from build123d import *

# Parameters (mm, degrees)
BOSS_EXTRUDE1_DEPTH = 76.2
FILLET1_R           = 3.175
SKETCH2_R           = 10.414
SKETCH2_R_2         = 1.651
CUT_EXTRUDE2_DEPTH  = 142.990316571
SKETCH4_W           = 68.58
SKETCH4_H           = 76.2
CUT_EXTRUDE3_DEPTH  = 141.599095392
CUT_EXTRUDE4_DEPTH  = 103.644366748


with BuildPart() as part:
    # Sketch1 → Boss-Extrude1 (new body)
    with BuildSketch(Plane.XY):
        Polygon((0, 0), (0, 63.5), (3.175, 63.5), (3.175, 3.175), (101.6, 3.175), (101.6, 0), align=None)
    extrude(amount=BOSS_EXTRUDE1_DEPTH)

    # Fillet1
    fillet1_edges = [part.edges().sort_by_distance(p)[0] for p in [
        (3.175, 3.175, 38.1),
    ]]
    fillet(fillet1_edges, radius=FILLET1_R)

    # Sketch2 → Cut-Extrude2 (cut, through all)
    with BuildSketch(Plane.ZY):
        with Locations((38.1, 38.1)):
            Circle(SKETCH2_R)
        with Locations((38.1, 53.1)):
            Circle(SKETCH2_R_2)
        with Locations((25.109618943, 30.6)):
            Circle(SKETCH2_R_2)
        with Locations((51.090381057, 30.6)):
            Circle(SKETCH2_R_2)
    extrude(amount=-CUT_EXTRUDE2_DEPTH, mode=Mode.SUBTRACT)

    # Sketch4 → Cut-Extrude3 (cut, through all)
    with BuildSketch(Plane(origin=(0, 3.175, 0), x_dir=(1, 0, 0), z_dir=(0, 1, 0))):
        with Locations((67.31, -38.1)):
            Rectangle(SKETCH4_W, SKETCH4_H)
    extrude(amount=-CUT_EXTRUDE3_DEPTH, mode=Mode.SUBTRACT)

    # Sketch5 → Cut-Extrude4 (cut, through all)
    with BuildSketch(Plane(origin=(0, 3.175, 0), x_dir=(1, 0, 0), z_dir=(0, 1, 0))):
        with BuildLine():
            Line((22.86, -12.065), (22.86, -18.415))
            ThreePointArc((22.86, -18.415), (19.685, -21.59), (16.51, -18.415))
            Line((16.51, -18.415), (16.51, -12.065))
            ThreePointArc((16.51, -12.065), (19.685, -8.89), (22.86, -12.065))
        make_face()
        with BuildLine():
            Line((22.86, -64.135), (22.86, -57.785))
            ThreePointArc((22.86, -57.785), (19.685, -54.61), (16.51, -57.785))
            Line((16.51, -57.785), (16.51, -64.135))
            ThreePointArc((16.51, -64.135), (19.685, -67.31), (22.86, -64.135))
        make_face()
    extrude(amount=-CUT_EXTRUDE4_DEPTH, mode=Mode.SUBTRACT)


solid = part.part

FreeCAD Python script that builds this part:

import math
import FreeCAD as App
import Part
import Sketcher

V = App.Vector
Q = App.Units.Quantity


def edges_at(feature, points):
    """Names of the edges that pass closest to the given points."""
    edges = feature.Shape.Edges
    near = lambda p: min(range(len(edges)), key=lambda i: edges[i].distToShape(Part.Vertex(*p))[0])
    return sorted({f"Edge{near(p) + 1}" for p in points})

doc = App.newDocument("Part")
body = doc.addObject("PartDesign::Body", "Body")

sketch1 = body.newObject("Sketcher::SketchObject", "Sketch")
sketch1.AttachmentSupport = (doc.getObject("XY_Plane"), [""])
sketch1.MapMode = "FlatFace"
sketch1.addGeometry([
    Part.LineSegment(V(0, 63.5, 0), V(0, 0, 0)),
    Part.LineSegment(V(0, 0, 0), V(101.6, 0, 0)),
    Part.LineSegment(V(101.6, 0, 0), V(101.6, 3.175, 0)),
    Part.LineSegment(V(101.6, 3.175, 0), V(3.175, 3.175, 0)),
    Part.LineSegment(V(3.175, 3.175, 0), V(3.175, 63.5, 0)),
    Part.LineSegment(V(3.175, 63.5, 0), V(0, 63.5, 0)),
], False)
sketch1.addConstraint([
    Sketcher.Constraint("Coincident", 0, 2, 1, 1),
    Sketcher.Constraint("Coincident", 1, 2, 2, 1),
    Sketcher.Constraint("Coincident", 2, 2, 3, 1),
    Sketcher.Constraint("Coincident", 3, 2, 4, 1),
    Sketcher.Constraint("Coincident", 4, 2, 5, 1),
    Sketcher.Constraint("Coincident", 5, 2, 0, 1),
    Sketcher.Constraint("Vertical", 0),
    Sketcher.Constraint("Horizontal", 1),
    Sketcher.Constraint("Vertical", 2),
    Sketcher.Constraint("Horizontal", 3),
    Sketcher.Constraint("Vertical", 4),
    Sketcher.Constraint("Horizontal", 5),
    Sketcher.Constraint("Coincident", 0, 2, -1, 1),
    Sketcher.Constraint("Equal", 5, 2),
    Sketcher.Constraint("DistanceX", 1, 1, 1, 2, Q("4 in")),
    Sketcher.Constraint("DistanceY", 0, 2, 0, 1, Q("2.5 in")),
    Sketcher.Constraint("DistanceX", 3, 2, 3, 1, Q("3.875 in")),
])
pad1 = body.newObject("PartDesign::Pad", "Pad")
pad1.Profile = sketch1
pad1.Length = Q("3 in")
doc.recompute()

fillet = body.newObject("PartDesign::Fillet", "Fillet")
fillet.Base = (pad1, edges_at(pad1, [(3.175, 3.175, 38.1)]))
fillet.Radius = Q("0.125 in")

sketch2 = body.newObject("Sketcher::SketchObject", "Sketch001")
sketch2.AttachmentSupport = (doc.getObject("YZ_Plane"), [""])
sketch2.MapMode = "FlatFace"
sketch2.addGeometry([
    Part.Circle(V(38.1, 38.1, 0), V(0, 0, 1), 10.414),
    Part.Circle(V(53.1, 38.1, 0), V(0, 0, 1), 1.651),
    Part.Circle(V(30.6, 25.109619, 0), V(0, 0, 1), 1.651),
    Part.Circle(V(30.6, 51.090381, 0), V(0, 0, 1), 1.651),
], False)
sketch2.addConstraint([
    Sketcher.Constraint("Equal", 1, 2),
    Sketcher.Constraint("Equal", 2, 3),
    Sketcher.Constraint("Horizontal", 0, 3, 1, 3),
    Sketcher.Constraint("Vertical", 2, 3, 3, 3),
    Sketcher.Constraint("Diameter", 0, Q("0.82 in")),
    Sketcher.Constraint("Diameter", 1, Q("0.13 in")),
    Sketcher.Constraint("DistanceX", -1, 1, 0, 3, Q("1.5 in")),
    Sketcher.Constraint("DistanceY", -1, 1, 0, 3, Q("1.5 in")),
    Sketcher.Constraint("DistanceX", -1, 1, 1, 3, Q("53.1 mm")),
    Sketcher.Constraint("DistanceX", -1, 1, 2, 3, Q("30.6 mm")),
    Sketcher.Constraint("DistanceY", -1, 1, 2, 3, Q("25.109619 mm")),
    Sketcher.Constraint("DistanceY", -1, 1, 3, 3, Q("51.090381 mm")),
])
pocket1 = body.newObject("PartDesign::Pocket", "Pocket")
pocket1.Profile = sketch2
pocket1.Type = "ThroughAll"
pocket1.Reversed = True

sketch3 = body.newObject("Sketcher::SketchObject", "Sketch002")
sketch3.AttachmentSupport = (doc.getObject("XZ_Plane"), [""])
sketch3.MapMode = "FlatFace"
sketch3.AttachmentOffset = App.Placement(V(0, 0, -0.125 * 25.4), App.Rotation())
sketch3.addGeometry([
    Part.LineSegment(V(33.02, 0, 0), V(33.02, 76.2, 0)),
    Part.LineSegment(V(33.02, 76.2, 0), V(101.6, 76.2, 0)),
    Part.LineSegment(V(101.6, 76.2, 0), V(101.6, 0, 0)),
    Part.LineSegment(V(101.6, 0, 0), V(33.02, 0, 0)),
], False)
sketch3.addConstraint([
    Sketcher.Constraint("Coincident", 0, 2, 1, 1),
    Sketcher.Constraint("Coincident", 1, 2, 2, 1),
    Sketcher.Constraint("Coincident", 2, 2, 3, 1),
    Sketcher.Constraint("Coincident", 3, 2, 0, 1),
    Sketcher.Constraint("Vertical", 0),
    Sketcher.Constraint("Horizontal", 1),
    Sketcher.Constraint("Vertical", 2),
    Sketcher.Constraint("Horizontal", 3),
    Sketcher.Constraint("PointOnObject", 2, 2, -1),
    Sketcher.Constraint("DistanceY", 0, 1, 0, 2, Q("3 in")),
    Sketcher.Constraint("DistanceX", 1, 1, 1, 2, Q("2.7 in")),
    Sketcher.Constraint("DistanceX", -1, 1, 1, 2, Q("4 in")),
])
pocket2 = body.newObject("PartDesign::Pocket", "Pocket001")
pocket2.Profile = sketch3
pocket2.Type = "ThroughAll"
pocket2.Reversed = True

sketch4 = body.newObject("Sketcher::SketchObject", "Sketch003")
sketch4.AttachmentSupport = (doc.getObject("XZ_Plane"), [""])
sketch4.MapMode = "FlatFace"
sketch4.AttachmentOffset = App.Placement(V(0, 0, -0.125 * 25.4), App.Rotation())
sketch4.addGeometry([
    Part.LineSegment(V(22.86, 18.415, 0), V(22.86, 12.065, 0)),
    Part.ArcOfCircle(Part.Circle(V(19.685, 12.065, 0), V(0, 0, 1), 3.175), math.radians(180), math.radians(360)),
    Part.LineSegment(V(16.51, 12.065, 0), V(16.51, 18.415, 0)),
    Part.ArcOfCircle(Part.Circle(V(19.685, 18.415, 0), V(0, 0, 1), 3.175), math.radians(0), math.radians(180)),
    Part.LineSegment(V(22.86, 64.135, 0), V(22.86, 57.785, 0)),
    Part.ArcOfCircle(Part.Circle(V(19.685, 57.785, 0), V(0, 0, 1), 3.175), math.radians(180), math.radians(360)),
    Part.LineSegment(V(16.51, 57.785, 0), V(16.51, 64.135, 0)),
    Part.ArcOfCircle(Part.Circle(V(19.685, 64.135, 0), V(0, 0, 1), 3.175), math.radians(0), math.radians(180)),
], False)
sketch4.addConstraint([
    Sketcher.Constraint("Tangent", 0, 2, 1, 2),
    Sketcher.Constraint("Tangent", 1, 1, 2, 1),
    Sketcher.Constraint("Tangent", 2, 2, 3, 2),
    Sketcher.Constraint("Tangent", 3, 1, 0, 1),
    Sketcher.Constraint("Tangent", 4, 2, 5, 2),
    Sketcher.Constraint("Tangent", 5, 1, 6, 1),
    Sketcher.Constraint("Tangent", 6, 2, 7, 2),
    Sketcher.Constraint("Tangent", 7, 1, 4, 1),
    Sketcher.Constraint("Vertical", 0),
    Sketcher.Constraint("Vertical", 2),
    Sketcher.Constraint("Vertical", 4),
    Sketcher.Constraint("Vertical", 6),
    Sketcher.Constraint("Equal", 3, 5),
    Sketcher.Constraint("Vertical", 3, 3, 5, 3),
    Sketcher.Constraint("Equal", 2, 4),
    Sketcher.Constraint("Radius", 1, Q("0.125 in")),
    Sketcher.Constraint("DistanceY", 0, 2, 0, 1, Q("0.25 in")),
    Sketcher.Constraint("DistanceX", -1, 1, 0, 2, Q("0.9 in")),
    Sketcher.Constraint("DistanceY", 1, 3, 5, 3, Q("1.8 in")),
    Sketcher.Constraint("DistanceY", -1, 1, 1, 3, Q("0.475 in")),
])
pocket3 = body.newObject("PartDesign::Pocket", "Pocket002")
pocket3.Profile = sketch4
pocket3.Type = "ThroughAll"
pocket3.Reversed = True

doc.recompute()
